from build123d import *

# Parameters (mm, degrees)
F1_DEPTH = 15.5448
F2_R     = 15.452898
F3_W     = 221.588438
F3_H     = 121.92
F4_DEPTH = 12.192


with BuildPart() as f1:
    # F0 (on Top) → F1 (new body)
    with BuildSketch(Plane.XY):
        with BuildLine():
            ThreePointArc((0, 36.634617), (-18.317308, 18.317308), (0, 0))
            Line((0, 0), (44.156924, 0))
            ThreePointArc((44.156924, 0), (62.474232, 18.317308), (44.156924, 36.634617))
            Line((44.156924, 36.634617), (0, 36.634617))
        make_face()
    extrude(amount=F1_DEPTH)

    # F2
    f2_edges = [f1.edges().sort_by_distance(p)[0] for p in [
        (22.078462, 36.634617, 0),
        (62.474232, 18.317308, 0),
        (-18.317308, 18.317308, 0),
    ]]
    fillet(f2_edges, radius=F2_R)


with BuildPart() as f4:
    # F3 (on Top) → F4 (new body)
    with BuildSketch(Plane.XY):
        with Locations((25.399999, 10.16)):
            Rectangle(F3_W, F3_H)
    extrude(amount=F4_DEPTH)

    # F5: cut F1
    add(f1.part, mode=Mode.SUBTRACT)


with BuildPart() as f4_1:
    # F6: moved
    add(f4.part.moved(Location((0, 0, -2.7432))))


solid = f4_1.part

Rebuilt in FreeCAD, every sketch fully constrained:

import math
import FreeCAD as App
import Part
import Sketcher
from FreeCAD import Vector
Q = App.Units.Quantity


def edges_at(feature, points):
    """Names of the edges that pass closest to the given points."""
    edges = feature.Shape.Edges
    near = lambda p: min(range(len(edges)), key=lambda i: edges[i].distToShape(Part.Vertex(*p))[0])
    return sorted({f"Edge{near(p) + 1}" for p in points})


def add_polygon(sketch, points):
    """Adds a closed chain of lines whose ends are joined by coincident constraints."""
    first, n = sketch.GeometryCount, len(points)
    for a, b in zip(points, points[1:] + points[:1]):
        sketch.addGeometry(Part.LineSegment(App.Vector(*a, 0), App.Vector(*b, 0)), False)
    for i in range(n):
        sketch.addConstraint(Sketcher.Constraint("Coincident", first + i, 2, first + (i + 1) % n, 1))

doc = App.newDocument("Part")
body = doc.addObject("PartDesign::Body", "Body")

# Sketch on XY plane
sketch1 = body.newObject("Sketcher::SketchObject", "Sketch")
sketch1.AttachmentSupport = (doc.getObject("XY_Plane"), [""])
sketch1.MapMode = "FlatFace"
sketch1.addGeometry([
    Part.ArcOfCircle(Part.Circle(Vector(0, 18, 0), Vector(0, 0, 1), 18), math.radians(90), math.radians(270)),
    Part.LineSegment(Vector(0, 0, 0), Vector(44, 0, 0)),
    Part.ArcOfCircle(Part.Circle(Vector(44, 18, 0), Vector(0, 0, 1), 18), math.radians(-90), math.radians(90)),
    Part.LineSegment(Vector(44, 37, 0), Vector(0, 37, 0)),
], False)
sketch1.addConstraint([
    Sketcher.Constraint("Tangent", 0, 2, 1, 1),
    Sketcher.Constraint("Tangent", 1, 2, 2, 1),
    Sketcher.Constraint("Tangent", 2, 2, 3, 1),
    Sketcher.Constraint("Tangent", 3, 2, 0, 1),
    Sketcher.Constraint("Horizontal", 1),
    Sketcher.Constraint("Horizontal", 3),
    Sketcher.Constraint("Coincident", 0, 2, -1, 1),
    Sketcher.Constraint("Radius", 0, Q("18.317308 mm")),
    Sketcher.Constraint("DistanceX", 1, 1, 1, 2, Q("44.156924 mm")),
])
pad1 = body.newObject("PartDesign::Pad", "Pad")
pad1.Profile = sketch1
pad1.Length = Q("0.612 in")
doc.recompute()

fillet = body.newObject("PartDesign::Fillet", "Fillet")
fillet.Base = (pad1, edges_at(pad1, [(22.078, 36.635, 0), (62.474, 18.317, 0), (-18.317, 18.317, 0)]))
fillet.Radius = 15.452898
body2 = doc.addObject("PartDesign::Body", "Body001")

# Sketch on XY plane
sketch2 = body2.newObject("Sketcher::SketchObject", "Sketch001")
sketch2.AttachmentSupport = (doc.getObject("XY_Plane001"), [""])
sketch2.MapMode = "FlatFace"
add_polygon(sketch2, [(-85, 71), (-85, -51), (136, -51), (136, 71)])  # lines 0-3
sketch2.addConstraint([
    Sketcher.Constraint("Vertical", 0),
    Sketcher.Constraint("Horizontal", 1),
    Sketcher.Constraint("Vertical", 2),
    Sketcher.Constraint("Horizontal", 3),
    Sketcher.Constraint("DistanceY", 0, 2, 0, 1, Q("4.8 in")),
    Sketcher.Constraint("DistanceY", 0, 2, -1, 1, Q("2 in")),
    Sketcher.Constraint("DistanceX", 1, 1, 1, 2, Q("221.588438 mm")),
    Sketcher.Constraint("DistanceX", 0, 2, -1, 1, Q("85.39422 mm")),
])
pad2 = body2.newObject("PartDesign::Pad", "Pad001")
pad2.Profile = sketch2
pad2.Length = Q("0.48 in")
doc.recompute()

boolean = body2.newObject("PartDesign::Boolean", "Boolean")
boolean.Type = "Cut"
boolean.addObjects([body])
body3 = doc.addObject("PartDesign::Body", "Body002")
doc.recompute()

body2.Placement = App.Placement(Vector(0, 0, -2.7432), App.Rotation(Vector(0, 0, 1), 0))
boolean2 = body3.newObject("PartDesign::Boolean", "Boolean001")
boolean2.Type = "Fuse"
boolean2.addObjects([body2])

doc.recompute()
